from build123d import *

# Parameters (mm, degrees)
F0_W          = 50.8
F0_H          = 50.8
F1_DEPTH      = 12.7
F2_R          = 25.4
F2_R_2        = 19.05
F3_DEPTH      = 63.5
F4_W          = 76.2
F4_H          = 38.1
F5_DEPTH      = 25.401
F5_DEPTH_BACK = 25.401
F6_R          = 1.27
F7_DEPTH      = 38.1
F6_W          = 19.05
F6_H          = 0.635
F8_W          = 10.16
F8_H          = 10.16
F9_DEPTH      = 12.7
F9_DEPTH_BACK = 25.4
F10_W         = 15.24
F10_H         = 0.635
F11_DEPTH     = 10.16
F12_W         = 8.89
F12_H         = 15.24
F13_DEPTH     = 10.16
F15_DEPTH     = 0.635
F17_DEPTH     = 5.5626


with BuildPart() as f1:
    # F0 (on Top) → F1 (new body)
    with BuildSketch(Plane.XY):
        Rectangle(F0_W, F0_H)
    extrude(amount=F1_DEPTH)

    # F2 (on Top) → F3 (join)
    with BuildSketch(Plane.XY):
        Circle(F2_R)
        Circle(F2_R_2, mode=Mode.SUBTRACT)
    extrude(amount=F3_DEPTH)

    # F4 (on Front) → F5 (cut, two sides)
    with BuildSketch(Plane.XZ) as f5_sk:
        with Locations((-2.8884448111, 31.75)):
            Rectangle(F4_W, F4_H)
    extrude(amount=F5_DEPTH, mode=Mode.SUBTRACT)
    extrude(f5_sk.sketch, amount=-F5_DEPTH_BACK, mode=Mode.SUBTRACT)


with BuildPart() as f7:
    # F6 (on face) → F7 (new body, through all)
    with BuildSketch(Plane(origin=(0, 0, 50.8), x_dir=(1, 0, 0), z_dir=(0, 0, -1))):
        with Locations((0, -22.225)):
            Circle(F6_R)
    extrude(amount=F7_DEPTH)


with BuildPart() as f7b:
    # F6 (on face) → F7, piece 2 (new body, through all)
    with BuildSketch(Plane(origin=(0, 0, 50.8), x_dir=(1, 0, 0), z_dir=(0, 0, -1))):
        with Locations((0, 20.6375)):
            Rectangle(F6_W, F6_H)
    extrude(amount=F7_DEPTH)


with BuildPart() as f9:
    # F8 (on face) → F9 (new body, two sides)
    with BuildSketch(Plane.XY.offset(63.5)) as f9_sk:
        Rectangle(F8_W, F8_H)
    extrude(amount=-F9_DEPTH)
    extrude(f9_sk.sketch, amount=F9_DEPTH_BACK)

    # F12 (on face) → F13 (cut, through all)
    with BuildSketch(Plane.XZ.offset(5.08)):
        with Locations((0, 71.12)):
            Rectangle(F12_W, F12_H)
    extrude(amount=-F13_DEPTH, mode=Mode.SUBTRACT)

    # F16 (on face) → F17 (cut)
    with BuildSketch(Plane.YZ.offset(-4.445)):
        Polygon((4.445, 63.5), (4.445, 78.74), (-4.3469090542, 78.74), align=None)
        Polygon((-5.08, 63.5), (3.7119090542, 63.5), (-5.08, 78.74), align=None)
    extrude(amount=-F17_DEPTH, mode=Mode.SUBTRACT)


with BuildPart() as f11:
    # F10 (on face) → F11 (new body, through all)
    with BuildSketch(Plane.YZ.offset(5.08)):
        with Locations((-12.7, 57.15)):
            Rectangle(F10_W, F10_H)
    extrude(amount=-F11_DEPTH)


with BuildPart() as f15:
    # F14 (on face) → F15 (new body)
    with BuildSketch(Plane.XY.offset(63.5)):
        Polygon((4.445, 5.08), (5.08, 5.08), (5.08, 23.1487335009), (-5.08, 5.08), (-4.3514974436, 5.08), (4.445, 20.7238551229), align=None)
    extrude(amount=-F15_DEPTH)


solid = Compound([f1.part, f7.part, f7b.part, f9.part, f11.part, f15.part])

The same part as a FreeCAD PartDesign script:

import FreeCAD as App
import Part
import Sketcher

V = App.Vector
Q = App.Units.Quantity


def add_polygon(sketch, points):
    """Adds a closed chain of lines whose ends are joined by coincident constraints."""
    first, n = sketch.GeometryCount, len(points)
    for a, b in zip(points, points[1:] + points[:1]):
        sketch.addGeometry(Part.LineSegment(App.Vector(*a, 0), App.Vector(*b, 0)), False)
    for i in range(n):
        sketch.addConstraint(Sketcher.Constraint("Coincident", first + i, 2, first + (i + 1) % n, 1))

doc = App.newDocument("Part")
params = doc.addObject("Spreadsheet::Sheet", "Params")
for row, (alias, value) in enumerate([
    ("sketch1_width", "2 in"),
    ("pad1_length", "0.5 in"),
    ("sketch2_diameter", "2 in"),
    ("sketch2_diameter2", "1.5 in"),
    ("pad2_length", "2.5 in"),
    ("sketch3_width", "3 in"),
    ("sketch3_height", "1.5 in"),
    ("sketch4_diameter", "0.1 in"),
    ("pad3_length", "1.5 in"),
    ("sketch5_width", "0.75 in"),
    ("sketch5_height", "0.025 in"),
    ("pad4_length", "1.5 in"),
    ("sketch6_width", "0.4 in"),
    ("pad5_length", "0.5 in"),
    ("pad5_length2", "1 in"),
    ("sketch7_height", "0.6 in"),
    ("sketch7_width", "0.35 in"),
    ("sketch8_height", "0.6 in"),
    ("pocket3_length", "0.219 in"),
    ("sketch9_width", "0.6 in"),
    ("sketch9_height", "0.025 in"),
    ("pad6_length", "0.4 in"),
    ("sketch10_width", "0.025 in"),
    ("pad7_length", "0.025 in"),
], start=1):
    params.set(f"A{row}", alias)
    params.set(f"B{row}", "=" + value)
    params.setAlias(f"B{row}", alias)

body = doc.addObject("PartDesign::Body", "Body")
body.AllowCompound = True

# Sketch on XY plane
sketch1 = doc.addObject("Sketcher::SketchObject", "Sketch")
body.addObject(sketch1)
sketch1.AttachmentSupport = (doc.XY_Plane, [""])
sketch1.MapMode = "FlatFace"
add_polygon(sketch1, [(-25.4, 25.4), (-25.4, -25.4), (25.4, -25.4), (25.4, 25.4)])  # lines 0-3
sketch1.addConstraint(Sketcher.Constraint("Vertical", 0))
sketch1.addConstraint(Sketcher.Constraint("Horizontal", 1))
sketch1.addConstraint(Sketcher.Constraint("Vertical", 2))
sketch1.addConstraint(Sketcher.Constraint("Horizontal", 3))
sketch1.addConstraint(Sketcher.Constraint("Symmetric", 0, 2, 2, 2, -1, 1))
sketch1.addConstraint(Sketcher.Constraint("Equal", 3, 0))
sketch1.addConstraint(Sketcher.Constraint("DistanceX", 1, 1, 1, 2, Q("2 in")))
sketch1.setExpression("Constraints[10]", "Params.sketch1_width")
pad1 = doc.addObject("PartDesign::Pad", "Pad")
body.addObject(pad1)
pad1.Profile = sketch1
pad1.setExpression("Length", "Params.pad1_length")

# Sketch on XY plane
sketch2 = doc.addObject("Sketcher::SketchObject", "Sketch001")
body.addObject(sketch2)
sketch2.AttachmentSupport = (doc.XY_Plane, [""])
sketch2.MapMode = "FlatFace"
sketch2.addGeometry(Part.Circle(V(0, 0, 0), V(0, 0, 1), 25.4), False)
sketch2.addGeometry(Part.Circle(V(0, 0, 0), V(0, 0, 1), 19.05), False)
sketch2.addConstraint(Sketcher.Constraint("Coincident", 0, 3, -1, 1))
sketch2.addConstraint(Sketcher.Constraint("Coincident", 1, 3, -1, 1))
sketch2.addConstraint(Sketcher.Constraint("Diameter", 0, Q("2 in")))
sketch2.addConstraint(Sketcher.Constraint("Diameter", 1, Q("1.5 in")))
sketch2.setExpression("Constraints[2]", "Params.sketch2_diameter")
sketch2.setExpression("Constraints[3]", "Params.sketch2_diameter2")
pad2 = doc.addObject("PartDesign::Pad", "Pad001")
body.addObject(pad2)
pad2.Profile = sketch2
pad2.setExpression("Length", "Params.pad2_length")

# Sketch on XZ plane
sketch3 = doc.addObject("Sketcher::SketchObject", "Sketch002")
body.addObject(sketch3)
sketch3.AttachmentSupport = (doc.XZ_Plane, [""])
sketch3.MapMode = "FlatFace"
add_polygon(sketch3, [(-40.988445, 50.8), (-40.988445, 12.7), (35.211555, 12.7), (35.211555, 50.8)])  # lines 0-3
sketch3.addConstraint(Sketcher.Constraint("Vertical", 0))
sketch3.addConstraint(Sketcher.Constraint("Horizontal", 1))
sketch3.addConstraint(Sketcher.Constraint("Vertical", 2))
sketch3.addConstraint(Sketcher.Constraint("Horizontal", 3))
sketch3.addConstraint(Sketcher.Constraint("DistanceX", 1, 1, 1, 2, Q("3 in")))
sketch3.addConstraint(Sketcher.Constraint("DistanceY", 0, 2, 0, 1, Q("1.5 in")))
sketch3.addConstraint(Sketcher.Constraint("DistanceY", -1, 1, 2, 2, Q("2 in")))
sketch3.addConstraint(Sketcher.Constraint("DistanceX", 0, 2, -1, 1, Q("40.988445 mm")))
sketch3.setExpression("Constraints[8]", "Params.sketch3_width")
sketch3.setExpression("Constraints[9]", "Params.sketch3_height")
pocket1 = doc.addObject("PartDesign::Pocket", "Pocket")
body.addObject(pocket1)
pocket1.Profile = sketch3
pocket1.Type = "ThroughAll"
pocket1.Midplane = True
body2 = doc.addObject("PartDesign::Body", "Body001")

# Sketch on XY plane
sketch4 = doc.addObject("Sketcher::SketchObject", "Sketch003")
body2.addObject(sketch4)
sketch4.AttachmentSupport = (doc.getObject("XY_Plane001"), [""])
sketch4.MapMode = "FlatFace"
sketch4.AttachmentOffset = App.Placement(V(0, 0, 2 * 25.4), App.Rotation())
sketch4.addGeometry(Part.Circle(V(0, 22.225, 0), V(0, 0, 1), 1.27), False)
sketch4.addConstraint(Sketcher.Constraint("PointOnObject", 0, 3, -2))
sketch4.addConstraint(Sketcher.Constraint("Diameter", 0, Q("0.1 in")))
sketch4.addConstraint(Sketcher.Constraint("DistanceY", -1, 1, 0, 3, Q("0.875 in")))
sketch4.setExpression("Constraints[1]", "Params.sketch4_diameter")
pad3 = doc.addObject("PartDesign::Pad", "Pad002")
body2.addObject(pad3)
pad3.Profile = sketch4
pad3.setExpression("Length", "Params.pad3_length")
pad3.Reversed = True
body3 = doc.addObject("PartDesign::Body", "Body002")

# Sketch on XY plane
sketch5 = doc.addObject("Sketcher::SketchObject", "Sketch004")
body3.addObject(sketch5)
sketch5.AttachmentSupport = (doc.getObject("XY_Plane002"), [""])
sketch5.MapMode = "FlatFace"
sketch5.AttachmentOffset = App.Placement(V(0, 0, 2 * 25.4), App.Rotation())
add_polygon(sketch5, [(-9.525, -20.955), (-9.525, -20.32), (9.525, -20.32), (9.525, -20.955)])  # lines 0-3
sketch5.addConstraint(Sketcher.Constraint("Vertical", 0))
sketch5.addConstraint(Sketcher.Constraint("Horizontal", 1))
sketch5.addConstraint(Sketcher.Constraint("Vertical", 2))
sketch5.addConstraint(Sketcher.Constraint("Horizontal", 3))
sketch5.addConstraint(Sketcher.Constraint("DistanceX", 1, 1, 1, 2, Q("0.75 in")))
sketch5.addConstraint(Sketcher.Constraint("DistanceY", 0, 2, -1, 1, Q("0.8 in")))
sketch5.addConstraint(Sketcher.Constraint("DistanceY", 0, 1, 0, 2, Q("0.025 in")))
sketch5.addConstraint(Sketcher.Constraint("DistanceX", 0, 2, -1, 1, Q("0.375 in")))
sketch5.setExpression("Constraints[8]", "Params.sketch5_width")
sketch5.setExpression("Constraints[10]", "Params.sketch5_height")
pad4 = doc.addObject("PartDesign::Pad", "Pad003")
body3.addObject(pad4)
pad4.Profile = sketch5
pad4.setExpression("Length", "Params.pad4_length")
pad4.Reversed = True
body4 = doc.addObject("PartDesign::Body", "Body003")

# Sketch on XY plane
sketch6 = doc.addObject("Sketcher::SketchObject", "Sketch005")
body4.addObject(sketch6)
sketch6.AttachmentSupport = (doc.getObject("XY_Plane003"), [""])
sketch6.MapMode = "FlatFace"
sketch6.AttachmentOffset = App.Placement(V(0, 0, 2.5 * 25.4), App.Rotation())
add_polygon(sketch6, [(-5.08, 5.08), (-5.08, -5.08), (5.08, -5.08), (5.08, 5.08)])  # lines 0-3
sketch6.addConstraint(Sketcher.Constraint("Vertical", 0))
sketch6.addConstraint(Sketcher.Constraint("Horizontal", 1))
sketch6.addConstraint(Sketcher.Constraint("Vertical", 2))
sketch6.addConstraint(Sketcher.Constraint("Horizontal", 3))
sketch6.addConstraint(Sketcher.Constraint("Symmetric", 0, 2, 2, 2, -1, 1))
sketch6.addConstraint(Sketcher.Constraint("Equal", 3, 0))
sketch6.addConstraint(Sketcher.Constraint("DistanceX", 1, 1, 1, 2, Q("0.4 in")))
sketch6.setExpression("Constraints[10]", "Params.sketch6_width")
pad5 = doc.addObject("PartDesign::Pad", "Pad004")
body4.addObject(pad5)
pad5.Profile = sketch6
pad5.Type = "TwoLengths"
pad5.setExpression("Length", "Params.pad5_length")
pad5.setExpression("Length2", "Params.pad5_length2")
pad5.Reversed = True

# Sketch on XZ plane
sketch7 = doc.addObject("Sketcher::SketchObject", "Sketch006")
body4.addObject(sketch7)
sketch7.AttachmentSupport = (doc.getObject("XZ_Plane003"), [""])
sketch7.MapMode = "FlatFace"
sketch7.AttachmentOffset = App.Placement(V(0, 0, 0.2 * 25.4), App.Rotation())
add_polygon(sketch7, [(-4.445, 78.74), (-4.445, 63.5), (4.445, 63.5), (4.445, 78.74)])  # lines 0-3
sketch7.addConstraint(Sketcher.Constraint("Vertical", 0))
sketch7.addConstraint(Sketcher.Constraint("Horizontal", 1))
sketch7.addConstraint(Sketcher.Constraint("Vertical", 2))
sketch7.addConstraint(Sketcher.Constraint("Horizontal", 3))
sketch7.addConstraint(Sketcher.Constraint("DistanceY", 0, 2, 0, 1, Q("0.6 in")))
sketch7.addConstraint(Sketcher.Constraint("DistanceX", 1, 1, 1, 2, Q("0.35 in")))
sketch7.addConstraint(Sketcher.Constraint("DistanceY", -1, 1, 0, 2, Q("2.5 in")))
sketch7.addConstraint(Sketcher.Constraint("DistanceX", 0, 2, -1, 1, Q("0.175 in")))
sketch7.setExpression("Constraints[8]", "Params.sketch7_height")
sketch7.setExpression("Constraints[9]", "Params.sketch7_width")
pocket2 = doc.addObject("PartDesign::Pocket", "Pocket001")
body4.addObject(pocket2)
pocket2.Profile = sketch7
pocket2.Type = "ThroughAll"

# Sketch on YZ plane
sketch8 = doc.addObject("Sketcher::SketchObject", "Sketch007")
body4.addObject(sketch8)
sketch8.AttachmentSupport = (doc.getObject("YZ_Plane003"), [""])
sketch8.MapMode = "FlatFace"
sketch8.AttachmentOffset = App.Placement(V(0, 0, -0.175 * 25.4), App.Rotation())
add_polygon(sketch8, [(4.445, 63.5), (4.445, 78.74), (-4.346909, 78.74)])  # lines 0-2
add_polygon(sketch8, [(-5.08, 63.5), (3.711909, 63.5), (-5.08, 78.74)])  # lines 3-5
sketch8.addConstraint(Sketcher.Constraint("Vertical", 0))
sketch8.addConstraint(Sketcher.Constraint("Horizontal", 1))
sketch8.addConstraint(Sketcher.Constraint("Horizontal", 3))
sketch8.addConstraint(Sketcher.Constraint("Vertical", 5))
sketch8.addConstraint(Sketcher.Constraint("Parallel", 2, 4))
sketch8.addConstraint(Sketcher.Constraint("Horizontal", 2, 2, 3, 2))
sketch8.addConstraint(Sketcher.Constraint("Horizontal", 1, 2, 4, 2))
sketch8.addConstraint(Sketcher.Constraint("DistanceY", 0, 1, 0, 2, Q("0.6 in")))
sketch8.addConstraint(Sketcher.Constraint("DistanceY", -1, 1, 0, 2, Q("3.1 in")))
sketch8.addConstraint(Sketcher.Constraint("DistanceX", 4, 2, -1, 1, Q("0.2 in")))
sketch8.addConstraint(Sketcher.Constraint("DistanceX", -1, 1, 0, 2, Q("0.175 in")))
sketch8.addConstraint(Sketcher.Constraint("DistanceX", 1, 2, 1, 1, Q("8.791909 mm")))
sketch8.setExpression("Constraints[13]", "Params.sketch8_height")
pocket3 = doc.addObject("PartDesign::Pocket", "Pocket002")
body4.addObject(pocket3)
pocket3.Profile = sketch8
pocket3.setExpression("Length", "Params.pocket3_length")
body5 = doc.addObject("PartDesign::Body", "Body004")

# Sketch on YZ plane
sketch9 = doc.addObject("Sketcher::SketchObject", "Sketch008")
body5.addObject(sketch9)
sketch9.AttachmentSupport = (doc.getObject("YZ_Plane004"), [""])
sketch9.MapMode = "FlatFace"
sketch9.AttachmentOffset = App.Placement(V(0, 0, 0.2 * 25.4), App.Rotation())
add_polygon(sketch9, [(-20.32, 57.4675), (-20.32, 56.8325), (-5.08, 56.8325), (-5.08, 57.4675)])  # lines 0-3
sketch9.addConstraint(Sketcher.Constraint("Vertical", 0))
sketch9.addConstraint(Sketcher.Constraint("Horizontal", 1))
sketch9.addConstraint(Sketcher.Constraint("Vertical", 2))
sketch9.addConstraint(Sketcher.Constraint("Horizontal", 3))
sketch9.addConstraint(Sketcher.Constraint("DistanceX", 1, 1, 1, 2, Q("0.6 in")))
sketch9.addConstraint(Sketcher.Constraint("DistanceX", 0, 2, -1, 1, Q("0.8 in")))
sketch9.addConstraint(Sketcher.Constraint("DistanceY", 0, 2, 0, 1, Q("0.025 in")))
sketch9.addConstraint(Sketcher.Constraint("DistanceY", -1, 1, 0, 2, Q("2.2375 in")))
sketch9.setExpression("Constraints[8]", "Params.sketch9_width")
sketch9.setExpression("Constraints[10]", "Params.sketch9_height")
pad6 = doc.addObject("PartDesign::Pad", "Pad005")
body5.addObject(pad6)
pad6.Profile = sketch9
pad6.setExpression("Length", "Params.pad6_length")
pad6.Reversed = True
body6 = doc.addObject("PartDesign::Body", "Body005")

# Sketch on XY plane
sketch10 = doc.addObject("Sketcher::SketchObject", "Sketch009")
body6.addObject(sketch10)
sketch10.AttachmentSupport = (doc.getObject("XY_Plane005"), [""])
sketch10.MapMode = "FlatFace"
sketch10.AttachmentOffset = App.Placement(V(0, 0, 2.5 * 25.4), App.Rotation())
add_polygon(sketch10, [(4.445, 5.08), (5.08, 5.08), (5.08, 23.148734), (-5.08, 5.08), (-4.351497, 5.08), (4.445, 20.723855)])  # lines 0-5
sketch10.addConstraint(Sketcher.Constraint("Horizontal", 0))
sketch10.addConstraint(Sketcher.Constraint("Vertical", 1))
sketch10.addConstraint(Sketcher.Constraint("Horizontal", 3))
sketch10.addConstraint(Sketcher.Constraint("Vertical", 5))
sketch10.addConstraint(Sketcher.Constraint("Symmetric", 0, 2, 2, 2, -2))
sketch10.addConstraint(Sketcher.Constraint("Parallel", 2, 4))
sketch10.addConstraint(Sketcher.Constraint("DistanceX", -1, 1, 0, 2, Q("0.2 in")))
sketch10.addConstraint(Sketcher.Constraint("DistanceY", -1, 1, 0, 2, Q("0.2 in")))
sketch10.addConstraint(Sketcher.Constraint("DistanceX", 0, 1, 0, 2, Q("0.025 in")))
sketch10.addConstraint(Sketcher.Constraint("DistanceY", 5, 2, 5, 1, Q("0.6158998 in")))
sketch10.addConstraint(Sketcher.Constraint("Distance", 2, Q("20.729321 mm")))
sketch10.setExpression("Constraints[14]", "Params.sketch10_width")
pad7 = doc.addObject("PartDesign::Pad", "Pad006")
body6.addObject(pad7)
pad7.Profile = sketch10
pad7.setExpression("Length", "Params.pad7_length")
pad7.Reversed = True

doc.recompute()
